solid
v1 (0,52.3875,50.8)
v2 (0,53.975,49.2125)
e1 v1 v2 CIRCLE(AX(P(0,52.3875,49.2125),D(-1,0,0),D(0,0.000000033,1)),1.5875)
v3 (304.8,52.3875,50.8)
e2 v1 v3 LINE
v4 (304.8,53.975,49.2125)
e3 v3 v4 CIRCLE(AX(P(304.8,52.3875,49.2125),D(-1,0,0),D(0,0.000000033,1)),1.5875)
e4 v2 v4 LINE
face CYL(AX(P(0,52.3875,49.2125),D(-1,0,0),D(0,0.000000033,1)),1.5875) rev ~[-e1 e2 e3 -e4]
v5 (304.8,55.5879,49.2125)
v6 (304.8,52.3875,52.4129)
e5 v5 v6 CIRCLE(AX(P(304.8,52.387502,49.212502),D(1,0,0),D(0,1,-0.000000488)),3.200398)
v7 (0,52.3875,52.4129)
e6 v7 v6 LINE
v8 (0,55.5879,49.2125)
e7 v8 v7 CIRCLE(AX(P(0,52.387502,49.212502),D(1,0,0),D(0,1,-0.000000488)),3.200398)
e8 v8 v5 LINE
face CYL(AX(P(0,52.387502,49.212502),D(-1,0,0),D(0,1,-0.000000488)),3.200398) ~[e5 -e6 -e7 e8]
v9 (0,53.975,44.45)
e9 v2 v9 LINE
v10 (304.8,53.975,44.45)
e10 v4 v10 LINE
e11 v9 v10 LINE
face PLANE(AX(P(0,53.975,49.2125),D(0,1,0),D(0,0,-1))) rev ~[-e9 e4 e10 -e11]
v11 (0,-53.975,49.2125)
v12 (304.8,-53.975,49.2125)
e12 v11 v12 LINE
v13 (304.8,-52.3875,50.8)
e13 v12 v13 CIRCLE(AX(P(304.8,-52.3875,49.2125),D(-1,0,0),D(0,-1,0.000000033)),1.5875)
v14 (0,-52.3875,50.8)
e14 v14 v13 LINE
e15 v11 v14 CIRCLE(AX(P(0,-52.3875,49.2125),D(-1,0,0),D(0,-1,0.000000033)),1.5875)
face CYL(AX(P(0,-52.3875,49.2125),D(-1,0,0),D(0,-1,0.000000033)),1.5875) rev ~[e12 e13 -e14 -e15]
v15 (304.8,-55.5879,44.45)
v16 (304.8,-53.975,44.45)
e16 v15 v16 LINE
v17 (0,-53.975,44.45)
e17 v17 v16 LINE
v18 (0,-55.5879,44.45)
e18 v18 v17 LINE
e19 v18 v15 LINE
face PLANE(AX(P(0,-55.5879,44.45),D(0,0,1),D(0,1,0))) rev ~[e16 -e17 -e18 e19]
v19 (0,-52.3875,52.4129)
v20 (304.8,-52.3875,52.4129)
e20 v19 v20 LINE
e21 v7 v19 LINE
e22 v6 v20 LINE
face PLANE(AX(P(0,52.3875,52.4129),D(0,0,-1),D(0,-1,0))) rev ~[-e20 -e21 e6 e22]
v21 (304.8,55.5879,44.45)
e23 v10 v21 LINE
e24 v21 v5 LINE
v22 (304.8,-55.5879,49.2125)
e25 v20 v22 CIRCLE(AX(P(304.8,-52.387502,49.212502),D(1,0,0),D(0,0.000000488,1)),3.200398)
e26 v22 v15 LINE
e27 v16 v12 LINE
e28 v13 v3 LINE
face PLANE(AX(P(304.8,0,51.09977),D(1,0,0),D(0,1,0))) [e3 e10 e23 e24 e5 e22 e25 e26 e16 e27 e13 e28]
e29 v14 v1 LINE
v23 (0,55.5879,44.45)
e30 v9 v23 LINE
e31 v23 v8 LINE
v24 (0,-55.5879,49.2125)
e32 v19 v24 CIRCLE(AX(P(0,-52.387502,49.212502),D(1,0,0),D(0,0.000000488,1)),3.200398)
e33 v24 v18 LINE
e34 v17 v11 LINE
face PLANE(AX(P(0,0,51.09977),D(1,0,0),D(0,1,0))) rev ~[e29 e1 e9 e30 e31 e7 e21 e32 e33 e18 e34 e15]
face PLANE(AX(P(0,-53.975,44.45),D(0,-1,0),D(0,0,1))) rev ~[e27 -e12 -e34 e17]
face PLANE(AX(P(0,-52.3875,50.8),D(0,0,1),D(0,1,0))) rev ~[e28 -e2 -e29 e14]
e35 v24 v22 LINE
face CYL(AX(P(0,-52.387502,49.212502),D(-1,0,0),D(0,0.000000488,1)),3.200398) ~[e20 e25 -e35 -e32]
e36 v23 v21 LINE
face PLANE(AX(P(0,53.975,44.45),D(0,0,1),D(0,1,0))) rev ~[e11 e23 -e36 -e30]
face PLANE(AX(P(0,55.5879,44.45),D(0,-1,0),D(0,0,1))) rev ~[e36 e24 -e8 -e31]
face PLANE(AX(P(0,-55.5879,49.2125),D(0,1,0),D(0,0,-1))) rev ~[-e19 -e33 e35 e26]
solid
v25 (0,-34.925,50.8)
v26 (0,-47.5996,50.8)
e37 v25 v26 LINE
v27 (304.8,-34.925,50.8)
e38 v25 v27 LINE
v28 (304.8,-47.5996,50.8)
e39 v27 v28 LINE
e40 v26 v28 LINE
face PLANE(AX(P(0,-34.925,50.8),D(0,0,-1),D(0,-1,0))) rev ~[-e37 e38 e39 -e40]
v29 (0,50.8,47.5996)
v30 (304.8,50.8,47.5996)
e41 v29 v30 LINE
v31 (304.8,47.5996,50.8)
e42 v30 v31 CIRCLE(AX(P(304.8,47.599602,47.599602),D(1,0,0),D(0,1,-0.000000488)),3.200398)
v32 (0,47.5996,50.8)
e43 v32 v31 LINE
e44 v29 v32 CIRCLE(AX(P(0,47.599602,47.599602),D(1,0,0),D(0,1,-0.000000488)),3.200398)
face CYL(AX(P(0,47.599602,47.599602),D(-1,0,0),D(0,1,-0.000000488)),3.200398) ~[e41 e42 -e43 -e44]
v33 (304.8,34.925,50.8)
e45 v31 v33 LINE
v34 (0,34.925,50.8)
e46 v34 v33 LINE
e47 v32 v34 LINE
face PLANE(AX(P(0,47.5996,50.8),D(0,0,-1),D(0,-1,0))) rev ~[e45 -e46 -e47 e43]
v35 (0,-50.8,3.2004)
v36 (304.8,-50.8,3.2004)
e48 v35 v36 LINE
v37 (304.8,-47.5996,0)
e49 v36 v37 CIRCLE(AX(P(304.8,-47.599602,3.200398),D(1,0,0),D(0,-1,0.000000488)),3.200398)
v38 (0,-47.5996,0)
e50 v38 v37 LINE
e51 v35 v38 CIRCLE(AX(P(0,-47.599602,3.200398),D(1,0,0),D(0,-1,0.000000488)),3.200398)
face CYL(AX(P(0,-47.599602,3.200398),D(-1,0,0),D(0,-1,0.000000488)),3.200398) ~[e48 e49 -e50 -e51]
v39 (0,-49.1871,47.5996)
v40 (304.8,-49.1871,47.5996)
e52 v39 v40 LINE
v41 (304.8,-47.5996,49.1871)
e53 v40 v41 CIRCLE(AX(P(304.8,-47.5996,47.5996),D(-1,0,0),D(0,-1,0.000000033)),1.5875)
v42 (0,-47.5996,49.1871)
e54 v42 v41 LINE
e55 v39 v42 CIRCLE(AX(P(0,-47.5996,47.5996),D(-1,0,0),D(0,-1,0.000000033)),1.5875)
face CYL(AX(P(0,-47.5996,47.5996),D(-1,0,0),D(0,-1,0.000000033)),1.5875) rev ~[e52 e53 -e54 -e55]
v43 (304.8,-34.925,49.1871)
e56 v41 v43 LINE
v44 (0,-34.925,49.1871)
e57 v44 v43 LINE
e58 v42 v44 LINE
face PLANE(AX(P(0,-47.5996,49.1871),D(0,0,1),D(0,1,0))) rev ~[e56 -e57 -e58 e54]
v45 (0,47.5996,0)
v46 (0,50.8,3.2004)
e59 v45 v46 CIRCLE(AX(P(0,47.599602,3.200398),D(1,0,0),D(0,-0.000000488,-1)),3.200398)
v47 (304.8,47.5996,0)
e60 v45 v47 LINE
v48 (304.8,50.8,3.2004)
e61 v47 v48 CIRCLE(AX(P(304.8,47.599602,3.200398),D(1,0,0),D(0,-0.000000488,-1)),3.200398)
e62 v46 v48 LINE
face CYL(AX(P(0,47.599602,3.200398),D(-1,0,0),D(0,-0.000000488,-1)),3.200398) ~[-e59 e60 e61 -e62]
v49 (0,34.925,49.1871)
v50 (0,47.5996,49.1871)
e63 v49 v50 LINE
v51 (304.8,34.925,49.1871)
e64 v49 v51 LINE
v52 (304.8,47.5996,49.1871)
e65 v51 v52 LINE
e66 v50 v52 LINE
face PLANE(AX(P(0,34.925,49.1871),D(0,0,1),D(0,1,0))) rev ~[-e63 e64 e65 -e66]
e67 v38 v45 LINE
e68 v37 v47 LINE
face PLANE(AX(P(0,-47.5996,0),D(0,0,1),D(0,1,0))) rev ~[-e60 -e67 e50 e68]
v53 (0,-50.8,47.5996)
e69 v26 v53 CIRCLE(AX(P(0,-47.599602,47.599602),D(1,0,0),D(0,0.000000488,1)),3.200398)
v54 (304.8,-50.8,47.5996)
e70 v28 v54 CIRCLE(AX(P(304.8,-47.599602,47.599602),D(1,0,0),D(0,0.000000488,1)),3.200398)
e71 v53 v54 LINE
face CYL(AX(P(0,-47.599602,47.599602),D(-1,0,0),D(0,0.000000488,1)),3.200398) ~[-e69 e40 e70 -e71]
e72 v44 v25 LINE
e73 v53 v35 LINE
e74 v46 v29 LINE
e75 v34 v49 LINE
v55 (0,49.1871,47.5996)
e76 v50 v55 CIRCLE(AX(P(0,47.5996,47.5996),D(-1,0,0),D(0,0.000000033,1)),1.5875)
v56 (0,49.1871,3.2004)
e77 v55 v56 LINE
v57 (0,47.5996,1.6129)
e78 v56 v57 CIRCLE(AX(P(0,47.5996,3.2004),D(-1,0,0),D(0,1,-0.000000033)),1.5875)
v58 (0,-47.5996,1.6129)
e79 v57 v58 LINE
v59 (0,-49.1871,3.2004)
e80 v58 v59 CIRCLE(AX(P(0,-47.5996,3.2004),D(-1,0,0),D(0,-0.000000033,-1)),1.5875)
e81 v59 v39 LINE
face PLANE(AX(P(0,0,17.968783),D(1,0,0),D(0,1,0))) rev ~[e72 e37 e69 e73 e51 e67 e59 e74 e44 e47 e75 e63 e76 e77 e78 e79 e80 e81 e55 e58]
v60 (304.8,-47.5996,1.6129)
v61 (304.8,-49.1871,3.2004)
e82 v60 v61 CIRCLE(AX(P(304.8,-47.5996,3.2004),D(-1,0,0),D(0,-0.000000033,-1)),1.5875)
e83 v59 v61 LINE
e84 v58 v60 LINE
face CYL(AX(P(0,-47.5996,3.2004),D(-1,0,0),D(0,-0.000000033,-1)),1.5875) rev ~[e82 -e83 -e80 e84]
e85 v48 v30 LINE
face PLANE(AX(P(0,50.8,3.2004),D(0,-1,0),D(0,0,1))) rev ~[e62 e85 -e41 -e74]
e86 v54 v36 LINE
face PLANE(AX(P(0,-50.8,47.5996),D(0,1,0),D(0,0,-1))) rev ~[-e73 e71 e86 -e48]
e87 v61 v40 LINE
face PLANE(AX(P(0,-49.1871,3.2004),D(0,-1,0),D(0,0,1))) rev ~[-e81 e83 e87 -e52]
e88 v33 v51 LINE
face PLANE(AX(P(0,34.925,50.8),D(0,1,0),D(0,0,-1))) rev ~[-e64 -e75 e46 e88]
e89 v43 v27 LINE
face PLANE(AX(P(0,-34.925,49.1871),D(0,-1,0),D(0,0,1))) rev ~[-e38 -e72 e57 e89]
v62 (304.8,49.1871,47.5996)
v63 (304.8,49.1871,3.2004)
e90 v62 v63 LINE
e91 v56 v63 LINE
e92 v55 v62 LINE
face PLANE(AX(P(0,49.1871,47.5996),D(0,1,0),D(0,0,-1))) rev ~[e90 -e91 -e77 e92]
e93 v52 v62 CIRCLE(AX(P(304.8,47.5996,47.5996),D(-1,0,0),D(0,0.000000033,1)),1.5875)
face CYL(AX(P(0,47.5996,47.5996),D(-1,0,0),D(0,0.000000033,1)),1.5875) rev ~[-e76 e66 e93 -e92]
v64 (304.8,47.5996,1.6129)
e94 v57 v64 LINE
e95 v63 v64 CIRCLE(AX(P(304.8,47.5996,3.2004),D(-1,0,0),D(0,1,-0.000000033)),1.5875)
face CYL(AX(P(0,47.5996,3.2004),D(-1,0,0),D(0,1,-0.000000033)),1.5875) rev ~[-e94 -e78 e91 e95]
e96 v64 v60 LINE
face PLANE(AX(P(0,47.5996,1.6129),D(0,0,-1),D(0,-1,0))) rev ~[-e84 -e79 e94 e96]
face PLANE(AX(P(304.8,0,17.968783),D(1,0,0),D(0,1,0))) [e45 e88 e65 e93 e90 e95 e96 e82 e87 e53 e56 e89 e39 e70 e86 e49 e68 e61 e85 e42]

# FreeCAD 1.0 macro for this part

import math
import FreeCAD as App
import Part
import Sketcher

V = App.Vector
Q = App.Units.Quantity

doc = App.newDocument("Part")
body = doc.addObject("PartDesign::Body", "Body")

sketch1 = body.newObject("Sketcher::SketchObject", "Sketch")
sketch1.AttachmentSupport = (doc.getObject("YZ_Plane"), [""])
sketch1.MapMode = "FlatFace"
sketch1.addGeometry([
    Part.LineSegment(V(-47.6, 0, 0), V(47.6, 0, 0)),
    Part.ArcOfCircle(Part.Circle(V(47.6, 3.2, 0), V(0, 0, 1), 3.2), math.radians(-90), math.radians(0)),
    Part.LineSegment(V(50.8, 3.2, 0), V(50.8, 47.6, 0)),
    Part.ArcOfCircle(Part.Circle(V(47.6, 47.6, 0), V(0, 0, 1), 3.2), math.radians(0), math.radians(90)),
    Part.LineSegment(V(47.6, 50.8, 0), V(34.9, 50.8, 0)),
    Part.LineSegment(V(34.9, 50.8, 0), V(34.9, 49.2, 0)),
    Part.LineSegment(V(34.9, 49.2, 0), V(47.6, 49.2, 0)),
    Part.ArcOfCircle(Part.Circle(V(47.6, 47.6, 0), V(0, 0, 1), 1.6), math.radians(0), math.radians(90)),
    Part.LineSegment(V(49.2, 47.6, 0), V(49.2, 3.2, 0)),
    Part.ArcOfCircle(Part.Circle(V(47.6, 3.2, 0), V(0, 0, 1), 1.6), math.radians(-90), math.radians(0)),
    Part.LineSegment(V(47.6, 1.6, 0), V(-47.6, 1.6, 0)),
    Part.ArcOfCircle(Part.Circle(V(-47.6, 3.2, 0), V(0, 0, 1), 1.6), math.radians(-180), math.radians(-90)),
    Part.LineSegment(V(-49.2, 3.2, 0), V(-49.2, 47.6, 0)),
    Part.ArcOfCircle(Part.Circle(V(-47.6, 47.6, 0), V(0, 0, 1), 1.6), math.radians(90), math.radians(180)),
    Part.LineSegment(V(-47.6, 49.2, 0), V(-34.9, 49.2, 0)),
    Part.LineSegment(V(-34.9, 49.2, 0), V(-34.9, 50.8, 0)),
    Part.LineSegment(V(-34.9, 50.8, 0), V(-47.6, 50.8, 0)),
    Part.ArcOfCircle(Part.Circle(V(-47.6, 47.6, 0), V(0, 0, 1), 3.2), math.radians(90), math.radians(180)),
    Part.LineSegment(V(-50.8, 47.6, 0), V(-50.8, 3.2, 0)),
    Part.ArcOfCircle(Part.Circle(V(-47.6, 3.2, 0), V(0, 0, 1), 3.2), math.radians(180), math.radians(270)),
], False)
sketch1.addConstraint([
    Sketcher.Constraint("Tangent", 0, 2, 1, 1),
    Sketcher.Constraint("Tangent", 1, 2, 2, 1),
    Sketcher.Constraint("Tangent", 2, 2, 3, 1),
    Sketcher.Constraint("Tangent", 3, 2, 4, 1),
    Sketcher.Constraint("Coincident", 4, 2, 5, 1),
    Sketcher.Constraint("Coincident", 5, 2, 6, 1),
    Sketcher.Constraint("Tangent", 6, 2, 7, 2),
    Sketcher.Constraint("Tangent", 7, 1, 8, 1),
    Sketcher.Constraint("Tangent", 8, 2, 9, 2),
    Sketcher.Constraint("Tangent", 9, 1, 10, 1),
    Sketcher.Constraint("Tangent", 10, 2, 11, 2),
    Sketcher.Constraint("Tangent", 11, 1, 12, 1),
    Sketcher.Constraint("Tangent", 12, 2, 13, 2),
    Sketcher.Constraint("Tangent", 13, 1, 14, 1),
    Sketcher.Constraint("Coincident", 14, 2, 15, 1),
    Sketcher.Constraint("Coincident", 15, 2, 16, 1),
    Sketcher.Constraint("Tangent", 16, 2, 17, 1),
    Sketcher.Constraint("Tangent", 17, 2, 18, 1),
    Sketcher.Constraint("Tangent", 18, 2, 19, 1),
    Sketcher.Constraint("Tangent", 19, 2, 0, 1),
    Sketcher.Constraint("Horizontal", 0),
    Sketcher.Constraint("Vertical", 2),
    Sketcher.Constraint("Horizontal", 4),
    Sketcher.Constraint("Vertical", 5),
    Sketcher.Constraint("Horizontal", 6),
    Sketcher.Constraint("Vertical", 8),
    Sketcher.Constraint("Horizontal", 10),
    Sketcher.Constraint("Vertical", 12),
    Sketcher.Constraint("Horizontal", 14),
    Sketcher.Constraint("Vertical", 15),
    Sketcher.Constraint("Horizontal", 16),
    Sketcher.Constraint("Vertical", 18),
    Sketcher.Constraint("Coincident", 7, 3, 3, 3),
    Sketcher.Constraint("Coincident", 9, 3, 1, 3),
    Sketcher.Constraint("Coincident", 17, 3, 13, 3),
    Sketcher.Constraint("Coincident", 19, 3, 11, 3),
    Sketcher.Constraint("Equal", 1, 3),
    Sketcher.Constraint("Equal", 9, 11),
    Sketcher.Constraint("Equal", 11, 13),
    Sketcher.Constraint("Symmetric", 0, 2, 19, 2, -1, 1),
    Sketcher.Constraint("Symmetric", 5, 2, 14, 2, -2),
    Sketcher.Constraint("DistanceX", -1, 1, 1, 2, Q("2 in")),
    Sketcher.Constraint("DistanceY", -1, 1, 3, 2, Q("2 in")),
    Sketcher.Constraint("Radius", 1, Q("0.1259999 in")),
    Sketcher.Constraint("Radius", 7, Q("0.0625 in")),
    Sketcher.Constraint("DistanceX", 4, 2, 4, 1, Q("0.499 in")),
])
pad1 = body.newObject("PartDesign::Pad", "Pad")
pad1.Profile = sketch1
pad1.Length = Q("12 in")
body2 = doc.addObject("PartDesign::Body", "Body001")

sketch2 = body2.newObject("Sketcher::SketchObject", "Sketch001")
sketch2.AttachmentSupport = (doc.getObject("YZ_Plane001"), [""])
sketch2.MapMode = "FlatFace"
sketch2.addGeometry([
    Part.LineSegment(V(-52.4, 50.8, 0), V(52.4, 50.8, 0)),
    Part.ArcOfCircle(Part.Circle(V(52.4, 49.2, 0), V(0, 0, 1), 1.6), math.radians(0), math.radians(90)),
    Part.LineSegment(V(54, 49.2, 0), V(54, 44.5, 0)),
    Part.LineSegment(V(54, 44.5, 0), V(55.6, 44.5, 0)),
    Part.LineSegment(V(55.6, 44.5, 0), V(55.6, 49.2, 0)),
    Part.ArcOfCircle(Part.Circle(V(52.4, 49.2, 0), V(0, 0, 1), 3.2), math.radians(0), math.radians(90)),
    Part.LineSegment(V(52.4, 52.4, 0), V(-52.4, 52.4, 0)),
    Part.ArcOfCircle(Part.Circle(V(-52.4, 49.2, 0), V(0, 0, 1), 3.2), math.radians(90), math.radians(180)),
    Part.LineSegment(V(-55.6, 49.2, 0), V(-55.6, 44.5, 0)),
    Part.LineSegment(V(-55.6, 44.5, 0), V(-54, 44.5, 0)),
    Part.LineSegment(V(-54, 44.5, 0), V(-54, 49.2, 0)),
    Part.ArcOfCircle(Part.Circle(V(-52.4, 49.2, 0), V(0, 0, 1), 1.6), math.radians(90), math.radians(180)),
], False)
sketch2.addConstraint([
    Sketcher.Constraint("Tangent", 0, 2, 1, 2),
    Sketcher.Constraint("Tangent", 1, 1, 2, 1),
    Sketcher.Constraint("Coincident", 2, 2, 3, 1),
    Sketcher.Constraint("Coincident", 3, 2, 4, 1),
    Sketcher.Constraint("Tangent", 4, 2, 5, 1),
    Sketcher.Constraint("Tangent", 5, 2, 6, 1),
    Sketcher.Constraint("Tangent", 6, 2, 7, 1),
    Sketcher.Constraint("Tangent", 7, 2, 8, 1),
    Sketcher.Constraint("Coincident", 8, 2, 9, 1),
    Sketcher.Constraint("Coincident", 9, 2, 10, 1),
    Sketcher.Constraint("Tangent", 10, 2, 11, 2),
    Sketcher.Constraint("Tangent", 11, 1, 0, 1),
    Sketcher.Constraint("Horizontal", 0),
    Sketcher.Constraint("Vertical", 2),
    Sketcher.Constraint("Horizontal", 3),
    Sketcher.Constraint("Vertical", 4),
    Sketcher.Constraint("Horizontal", 6),
    Sketcher.Constraint("Vertical", 8),
    Sketcher.Constraint("Horizontal", 9),
    Sketcher.Constraint("Vertical", 10),
    Sketcher.Constraint("Coincident", 5, 3, 1, 3),
    Sketcher.Constraint("Coincident", 11, 3, 7, 3),
    Sketcher.Constraint("Equal", 5, 7),
    Sketcher.Constraint("Symmetric", 3, 2, 8, 2, -2),
    Sketcher.Constraint("DistanceY", -1, 1, 0, 2, Q("2 in")),
    Sketcher.Constraint("Radius", 1, Q("0.0625 in")),
    Sketcher.Constraint("Radius", 5, Q("0.1259999 in")),
    Sketcher.Constraint("DistanceX", 0, 1, 0, 2, Q("4.125 in")),
    Sketcher.Constraint("DistanceY", 2, 2, 2, 1, Q("0.1875 in")),
])
pad2 = body2.newObject("PartDesign::Pad", "Pad001")
pad2.Profile = sketch2
pad2.Length = Q("12 in")

doc.recompute()
